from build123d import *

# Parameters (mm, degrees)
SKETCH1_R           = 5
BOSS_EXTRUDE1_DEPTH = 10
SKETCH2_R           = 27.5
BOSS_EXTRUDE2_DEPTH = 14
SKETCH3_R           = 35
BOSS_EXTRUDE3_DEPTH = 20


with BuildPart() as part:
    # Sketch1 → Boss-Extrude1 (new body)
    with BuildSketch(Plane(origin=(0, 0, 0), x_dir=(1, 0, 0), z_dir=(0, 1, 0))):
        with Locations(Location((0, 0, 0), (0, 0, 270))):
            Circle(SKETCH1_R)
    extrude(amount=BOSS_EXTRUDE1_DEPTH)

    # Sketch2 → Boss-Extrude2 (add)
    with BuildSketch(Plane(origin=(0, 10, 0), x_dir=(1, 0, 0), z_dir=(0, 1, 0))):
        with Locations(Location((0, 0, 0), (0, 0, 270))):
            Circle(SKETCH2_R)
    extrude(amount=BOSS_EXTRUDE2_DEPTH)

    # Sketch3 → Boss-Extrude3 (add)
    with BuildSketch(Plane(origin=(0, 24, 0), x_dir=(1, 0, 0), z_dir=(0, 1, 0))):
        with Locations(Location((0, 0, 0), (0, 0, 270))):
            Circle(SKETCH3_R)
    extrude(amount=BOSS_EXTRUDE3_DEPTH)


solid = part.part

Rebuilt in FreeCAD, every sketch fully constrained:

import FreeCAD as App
import Part
import Sketcher
from FreeCAD import Vector
Q = App.Units.Quantity

doc = App.newDocument("Part")
body = doc.addObject("PartDesign::Body", "Body")

# Sketch on XZ plane
sketch1 = doc.addObject("Sketcher::SketchObject", "Sketch")
body.addObject(sketch1)
sketch1.AttachmentSupport = (doc.XZ_Plane, [""])
sketch1.MapMode = "FlatFace"
sketch1.addGeometry(Part.Circle(Vector(0, 0, 0), Vector(0, 0, 1), 5), False)
sketch1.addConstraint([
    Sketcher.Constraint("Coincident", 0, 3, -1, 1),
    Sketcher.Constraint("Diameter", 0, Q("10 mm")),
])
pad1 = doc.addObject("PartDesign::Pad", "Pad")
body.addObject(pad1)
pad1.Profile = sketch1
pad1.Length = 10
pad1.Reversed = True

# Sketch on XZ plane
sketch2 = doc.addObject("Sketcher::SketchObject", "Sketch001")
body.addObject(sketch2)
sketch2.AttachmentSupport = (doc.XZ_Plane, [""])
sketch2.MapMode = "FlatFace"
sketch2.AttachmentOffset = App.Placement(Vector(0, 0, -10), App.Rotation())
sketch2.addGeometry(Part.Circle(Vector(0, 0, 0), Vector(0, 0, 1), 28), False)
sketch2.addConstraint([
    Sketcher.Constraint("Coincident", 0, 3, -1, 1),
    Sketcher.Constraint("Diameter", 0, Q("55 mm")),
])
pad2 = doc.addObject("PartDesign::Pad", "Pad001")
body.addObject(pad2)
pad2.Profile = sketch2
pad2.Length = 14
pad2.Reversed = True

# Sketch on XZ plane
sketch3 = doc.addObject("Sketcher::SketchObject", "Sketch002")
body.addObject(sketch3)
sketch3.AttachmentSupport = (doc.XZ_Plane, [""])
sketch3.MapMode = "FlatFace"
sketch3.AttachmentOffset = App.Placement(Vector(0, 0, -24), App.Rotation())
sketch3.addGeometry(Part.Circle(Vector(0, 0, 0), Vector(0, 0, 1), 35), False)
sketch3.addConstraint([
    Sketcher.Constraint("Coincident", 0, 3, -1, 1),
    Sketcher.Constraint("Diameter", 0, Q("70 mm")),
])
pad3 = doc.addObject("PartDesign::Pad", "Pad002")
body.addObject(pad3)
pad3.Profile = sketch3
pad3.Length = 20
pad3.Reversed = True

doc.recompute()
